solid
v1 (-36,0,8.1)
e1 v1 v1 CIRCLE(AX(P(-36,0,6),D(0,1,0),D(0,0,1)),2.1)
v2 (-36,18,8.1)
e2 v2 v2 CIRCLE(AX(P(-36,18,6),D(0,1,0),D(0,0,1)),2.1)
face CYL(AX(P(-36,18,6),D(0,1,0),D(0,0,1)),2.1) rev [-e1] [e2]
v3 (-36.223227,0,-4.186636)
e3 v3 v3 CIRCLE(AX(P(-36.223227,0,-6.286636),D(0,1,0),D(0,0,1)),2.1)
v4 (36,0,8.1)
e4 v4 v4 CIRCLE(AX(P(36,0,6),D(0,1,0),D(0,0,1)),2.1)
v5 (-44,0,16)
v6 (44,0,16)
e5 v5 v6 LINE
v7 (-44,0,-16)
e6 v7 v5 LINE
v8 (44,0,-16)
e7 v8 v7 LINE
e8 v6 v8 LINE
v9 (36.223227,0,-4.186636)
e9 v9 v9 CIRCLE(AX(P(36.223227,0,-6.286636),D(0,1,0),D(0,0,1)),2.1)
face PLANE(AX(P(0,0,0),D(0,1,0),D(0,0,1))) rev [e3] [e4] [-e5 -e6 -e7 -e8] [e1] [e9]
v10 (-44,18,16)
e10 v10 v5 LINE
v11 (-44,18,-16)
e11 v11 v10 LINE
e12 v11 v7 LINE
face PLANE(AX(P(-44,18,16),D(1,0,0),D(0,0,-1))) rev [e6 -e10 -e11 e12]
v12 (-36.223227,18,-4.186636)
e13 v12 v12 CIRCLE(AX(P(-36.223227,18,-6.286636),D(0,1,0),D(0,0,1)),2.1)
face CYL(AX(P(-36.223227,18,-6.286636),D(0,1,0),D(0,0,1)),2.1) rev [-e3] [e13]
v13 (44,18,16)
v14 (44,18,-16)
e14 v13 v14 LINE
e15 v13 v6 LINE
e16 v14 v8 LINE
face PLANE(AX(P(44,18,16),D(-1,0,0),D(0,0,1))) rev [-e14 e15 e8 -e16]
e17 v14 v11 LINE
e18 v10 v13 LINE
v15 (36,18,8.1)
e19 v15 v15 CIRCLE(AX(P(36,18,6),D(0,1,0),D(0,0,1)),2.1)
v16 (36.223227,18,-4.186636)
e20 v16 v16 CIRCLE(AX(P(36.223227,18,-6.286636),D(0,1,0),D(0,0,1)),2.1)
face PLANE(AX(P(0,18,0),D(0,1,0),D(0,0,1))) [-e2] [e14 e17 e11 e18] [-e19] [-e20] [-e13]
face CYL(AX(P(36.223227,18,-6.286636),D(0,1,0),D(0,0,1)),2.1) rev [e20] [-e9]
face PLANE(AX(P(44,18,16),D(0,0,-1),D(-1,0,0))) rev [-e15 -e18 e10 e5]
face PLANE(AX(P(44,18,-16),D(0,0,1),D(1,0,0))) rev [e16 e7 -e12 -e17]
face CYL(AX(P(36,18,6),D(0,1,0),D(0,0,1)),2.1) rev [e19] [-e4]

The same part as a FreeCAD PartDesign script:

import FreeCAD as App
import Part
import Sketcher

doc = App.newDocument("Part")
body = doc.addObject("PartDesign::Body", "Body")

sketch1 = body.newObject("Sketcher::SketchObject", "Sketch")
sketch1.AttachmentSupport = (doc.getObject("XZ_Plane"), [""])
sketch1.MapMode = "FlatFace"
sketch1.addGeometry([
    Part.LineSegment(App.Vector(-44, -16, 0), App.Vector(-44, 16, 0)),
    Part.LineSegment(App.Vector(-44, 16, 0), App.Vector(44, 16, 0)),
    Part.LineSegment(App.Vector(44, 16, 0), App.Vector(44, -16, 0)),
    Part.LineSegment(App.Vector(44, -16, 0), App.Vector(-44, -16, 0)),
], False)
sketch1.addConstraint([
    Sketcher.Constraint("Coincident", 0, 2, 1, 1),
    Sketcher.Constraint("Coincident", 1, 2, 2, 1),
    Sketcher.Constraint("Coincident", 2, 2, 3, 1),
    Sketcher.Constraint("Coincident", 3, 2, 0, 1),
    Sketcher.Constraint("Vertical", 0),
    Sketcher.Constraint("Horizontal", 1),
    Sketcher.Constraint("Vertical", 2),
    Sketcher.Constraint("Horizontal", 3),
    Sketcher.Constraint("Symmetric", 0, 2, 2, 2, -1, 1),
    Sketcher.Constraint("DistanceX", 1, 1, 1, 2, 88.0),
    Sketcher.Constraint("DistanceY", 0, 1, 0, 2, 32.0),
])
pad1 = body.newObject("PartDesign::Pad", "Pad")
pad1.Profile = sketch1
pad1.Length = 18
pad1.Reversed = True

sketch2 = body.newObject("Sketcher::SketchObject", "Sketch001")
sketch2.AttachmentSupport = (doc.getObject("XZ_Plane"), [""])
sketch2.MapMode = "FlatFace"
sketch2.AttachmentOffset = App.Placement(App.Vector(0, 0, -18), App.Rotation())
sketch2.addGeometry([
    Part.Circle(App.Vector(36, 6, 0), App.Vector(0, 0, 1), 2.1),
    Part.Circle(App.Vector(36.223227, -6.286636, 0), App.Vector(0, 0, 1), 2.1),
    Part.Circle(App.Vector(-36, 6, 0), App.Vector(0, 0, 1), 2.1),
    Part.Circle(App.Vector(-36.223227, -6.286636, 0), App.Vector(0, 0, 1), 2.1),
], False)
sketch2.addConstraint([
    Sketcher.Constraint("Equal", 0, 1),
    Sketcher.Constraint("Equal", 1, 2),
    Sketcher.Constraint("Equal", 2, 3),
    Sketcher.Constraint("Symmetric", 0, 3, 2, 3, -2),
    Sketcher.Constraint("Symmetric", 1, 3, 3, 3, -2),
    Sketcher.Constraint("Diameter", 0, 4.2),
    Sketcher.Constraint("DistanceX", -1, 1, 0, 3, 36.0),
    Sketcher.Constraint("DistanceY", -1, 1, 0, 3, 6.0),
    Sketcher.Constraint("DistanceX", -1, 1, 1, 3, 36.223227),
    Sketcher.Constraint("DistanceY", 1, 3, -1, 1, 6.286636),
])
doc.recompute()
hole = body.newObject("PartDesign::Hole", "Hole")
hole.Profile = sketch2
hole.ThreadType = "None"
hole.Diameter = 4.2
hole.DepthType = "ThroughAll"
hole.Reversed = True

doc.recompute()
